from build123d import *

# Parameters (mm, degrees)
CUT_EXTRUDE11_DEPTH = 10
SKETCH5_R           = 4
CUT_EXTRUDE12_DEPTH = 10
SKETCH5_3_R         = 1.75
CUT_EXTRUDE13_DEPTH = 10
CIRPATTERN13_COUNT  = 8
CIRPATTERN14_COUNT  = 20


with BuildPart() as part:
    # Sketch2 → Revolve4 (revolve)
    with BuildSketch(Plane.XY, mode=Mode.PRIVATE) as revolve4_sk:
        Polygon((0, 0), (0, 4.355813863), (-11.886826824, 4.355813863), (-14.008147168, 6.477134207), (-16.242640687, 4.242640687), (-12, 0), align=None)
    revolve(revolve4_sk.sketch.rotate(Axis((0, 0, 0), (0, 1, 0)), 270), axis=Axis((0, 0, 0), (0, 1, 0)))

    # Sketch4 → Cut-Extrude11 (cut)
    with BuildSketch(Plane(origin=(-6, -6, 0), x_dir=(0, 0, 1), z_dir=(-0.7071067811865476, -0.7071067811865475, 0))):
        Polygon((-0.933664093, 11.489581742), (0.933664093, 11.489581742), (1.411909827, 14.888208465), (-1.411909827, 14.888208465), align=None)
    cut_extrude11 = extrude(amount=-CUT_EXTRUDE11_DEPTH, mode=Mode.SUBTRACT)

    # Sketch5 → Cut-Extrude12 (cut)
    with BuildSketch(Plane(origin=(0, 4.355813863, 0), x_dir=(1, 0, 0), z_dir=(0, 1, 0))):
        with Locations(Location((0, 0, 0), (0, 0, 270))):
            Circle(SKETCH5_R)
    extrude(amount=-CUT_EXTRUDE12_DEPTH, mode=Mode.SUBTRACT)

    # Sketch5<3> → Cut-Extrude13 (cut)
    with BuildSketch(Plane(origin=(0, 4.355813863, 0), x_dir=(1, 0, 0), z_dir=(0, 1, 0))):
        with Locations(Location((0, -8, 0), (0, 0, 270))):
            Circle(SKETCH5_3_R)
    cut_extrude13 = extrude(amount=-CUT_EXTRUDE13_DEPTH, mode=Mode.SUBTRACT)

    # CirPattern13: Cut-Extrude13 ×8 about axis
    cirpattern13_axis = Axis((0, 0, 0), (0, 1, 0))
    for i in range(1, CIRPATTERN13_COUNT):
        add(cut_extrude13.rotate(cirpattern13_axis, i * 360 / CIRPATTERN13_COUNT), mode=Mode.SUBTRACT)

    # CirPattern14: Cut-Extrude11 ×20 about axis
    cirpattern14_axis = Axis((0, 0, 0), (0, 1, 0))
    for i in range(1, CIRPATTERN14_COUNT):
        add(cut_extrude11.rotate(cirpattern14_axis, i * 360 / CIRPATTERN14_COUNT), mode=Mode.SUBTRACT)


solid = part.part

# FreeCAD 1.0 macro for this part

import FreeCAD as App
import Part
import Sketcher
from FreeCAD import Vector
Q = App.Units.Quantity

doc = App.newDocument("Part")
body = doc.addObject("PartDesign::Body", "Body")

# Sketch on XY plane
sketch1 = body.newObject("Sketcher::SketchObject", "Sketch")
sketch1.AttachmentSupport = (doc.getObject("XY_Plane"), [""])
sketch1.MapMode = "FlatFace"
sketch1.addGeometry([
    Part.LineSegment(Vector(0, 0, 0), Vector(0, 4.4, 0)),  # 0
    Part.LineSegment(Vector(0, 4.4, 0), Vector(-11.9, 4.4, 0)),  # 1
    Part.LineSegment(Vector(-11.9, 4.4, 0), Vector(-14, 6.5, 0)),  # 2
    Part.LineSegment(Vector(-14, 6.5, 0), Vector(-16.2, 4.2, 0)),  # 3
    Part.LineSegment(Vector(-16.2, 4.2, 0), Vector(-12, 0, 0)),  # 4
    Part.LineSegment(Vector(-12, 0, 0), Vector(0, 0, 0)),  # 5
], False)
sketch1.addConstraint([
    Sketcher.Constraint("Coincident", 0, 2, 1, 1),
    Sketcher.Constraint("Coincident", 1, 2, 2, 1),
    Sketcher.Constraint("Coincident", 2, 2, 3, 1),
    Sketcher.Constraint("Coincident", 3, 2, 4, 1),
    Sketcher.Constraint("Coincident", 4, 2, 5, 1),
    Sketcher.Constraint("Coincident", 5, 2, 0, 1),
    Sketcher.Constraint("Vertical", 0),
    Sketcher.Constraint("Horizontal", 1),
    Sketcher.Constraint("Horizontal", 5),
    Sketcher.Constraint("Coincident", 5, 2, -1, 1),
    Sketcher.Constraint("Perpendicular", 2, 3),
    Sketcher.Constraint("Perpendicular", 3, 4),
    Sketcher.Constraint("DistanceX", 5, 1, 5, 2, Q("12 mm")),
    Sketcher.Constraint("Angle", 2, Q("135 deg")),
    Sketcher.Constraint("Distance", 2, Q("3 mm")),
    Sketcher.Constraint("Distance", 4, Q("6 mm")),
    Sketcher.Constraint("Distance", 3, Q("3.160051 mm")),
])
revolution = body.newObject("PartDesign::Revolution", "Revolution")
revolution.Profile = sketch1
revolution.ReferenceAxis = (sketch1, ["V_Axis"])
revolution.Angle = 360

# Sketch on an angled plane
sketch2 = body.newObject("Sketcher::SketchObject", "Sketch001")
sketch2.Placement = App.Placement(Vector(-6, -6, 0), App.Rotation(Vector(0, 0, 1), Vector(-0.707106781, 0.707106781, 0), Vector(-0.707106781, -0.707106781, 0), "ZXY"))
sketch2.addGeometry([
    Part.LineSegment(Vector(-0.9, 11.5, 0), Vector(0.9, 11.5, 0)),
    Part.LineSegment(Vector(0.9, 11.5, 0), Vector(1.4, 14.9, 0)),
    Part.LineSegment(Vector(1.4, 14.9, 0), Vector(-1.4, 14.9, 0)),
    Part.LineSegment(Vector(-1.4, 14.9, 0), Vector(-0.9, 11.5, 0)),
], False)
sketch2.addConstraint([
    Sketcher.Constraint("Coincident", 0, 2, 1, 1),
    Sketcher.Constraint("Coincident", 1, 2, 2, 1),
    Sketcher.Constraint("Coincident", 2, 2, 3, 1),
    Sketcher.Constraint("Coincident", 3, 2, 0, 1),
    Sketcher.Constraint("Horizontal", 0),
    Sketcher.Constraint("Horizontal", 2),
    Sketcher.Constraint("Equal", 1, 3),
    Sketcher.Constraint("DistanceX", 0, 1, 0, 2, Q("1.867328 mm")),
    Sketcher.Constraint("DistanceX", 2, 2, 2, 1, Q("2.82382 mm")),
    Sketcher.Constraint("Distance", 1, Q("3.432111 mm")),
    Sketcher.Constraint("DistanceY", -1, 1, 0, 2, Q("11.489582 mm")),
    Sketcher.Constraint("DistanceX", -1, 1, 1, 2, Q("1.41191 mm")),
])
pocket1 = body.newObject("PartDesign::Pocket", "Pocket")
pocket1.Profile = sketch2
pocket1.Length = 10

# Sketch on XZ plane
sketch3 = body.newObject("Sketcher::SketchObject", "Sketch002")
sketch3.AttachmentSupport = (doc.getObject("XZ_Plane"), [""])
sketch3.MapMode = "FlatFace"
sketch3.AttachmentOffset = App.Placement(Vector(0, 0, -4.355814), App.Rotation())
sketch3.addGeometry(Part.Circle(Vector(0, 0, 0), Vector(0, 0, 1), 4), False)
sketch3.addConstraint([
    Sketcher.Constraint("Coincident", 0, 3, -1, 1),
    Sketcher.Constraint("Diameter", 0, Q("8 mm")),
])
pocket2 = body.newObject("PartDesign::Pocket", "Pocket001")
pocket2.Profile = sketch3
pocket2.Length = 10
pocket2.Reversed = True

# Sketch on XZ plane
sketch4 = body.newObject("Sketcher::SketchObject", "Sketch003")
sketch4.AttachmentSupport = (doc.getObject("XZ_Plane"), [""])
sketch4.MapMode = "FlatFace"
sketch4.AttachmentOffset = App.Placement(Vector(0, 0, -4.355814), App.Rotation())
sketch4.addGeometry(Part.Circle(Vector(0, 8, 0), Vector(0, 0, 1), 1.8), False)
sketch4.addConstraint([
    Sketcher.Constraint("PointOnObject", 0, 3, -2),
    Sketcher.Constraint("Diameter", 0, Q("3.5 mm")),
    Sketcher.Constraint("DistanceY", -1, 1, 0, 3, Q("8 mm")),
])
pocket3 = body.newObject("PartDesign::Pocket", "Pocket002")
pocket3.Profile = sketch4
pocket3.Length = 10
pocket3.Reversed = True
doc.recompute()

polarpattern = body.newObject("PartDesign::PolarPattern", "PolarPattern")
polarpattern.Originals = [pocket3]
polarpattern.Axis = (doc.getObject("Y_Axis"), [""])
polarpattern.Angle = 360
polarpattern.Occurrences = 8
body.Tip = polarpattern
doc.recompute()

polarpattern2 = body.newObject("PartDesign::PolarPattern", "PolarPattern001")
polarpattern2.Originals = [pocket1]
polarpattern2.Axis = (doc.getObject("Y_Axis"), [""])
polarpattern2.Angle = 360
polarpattern2.Occurrences = 20
body.Tip = polarpattern2

doc.recompute()
